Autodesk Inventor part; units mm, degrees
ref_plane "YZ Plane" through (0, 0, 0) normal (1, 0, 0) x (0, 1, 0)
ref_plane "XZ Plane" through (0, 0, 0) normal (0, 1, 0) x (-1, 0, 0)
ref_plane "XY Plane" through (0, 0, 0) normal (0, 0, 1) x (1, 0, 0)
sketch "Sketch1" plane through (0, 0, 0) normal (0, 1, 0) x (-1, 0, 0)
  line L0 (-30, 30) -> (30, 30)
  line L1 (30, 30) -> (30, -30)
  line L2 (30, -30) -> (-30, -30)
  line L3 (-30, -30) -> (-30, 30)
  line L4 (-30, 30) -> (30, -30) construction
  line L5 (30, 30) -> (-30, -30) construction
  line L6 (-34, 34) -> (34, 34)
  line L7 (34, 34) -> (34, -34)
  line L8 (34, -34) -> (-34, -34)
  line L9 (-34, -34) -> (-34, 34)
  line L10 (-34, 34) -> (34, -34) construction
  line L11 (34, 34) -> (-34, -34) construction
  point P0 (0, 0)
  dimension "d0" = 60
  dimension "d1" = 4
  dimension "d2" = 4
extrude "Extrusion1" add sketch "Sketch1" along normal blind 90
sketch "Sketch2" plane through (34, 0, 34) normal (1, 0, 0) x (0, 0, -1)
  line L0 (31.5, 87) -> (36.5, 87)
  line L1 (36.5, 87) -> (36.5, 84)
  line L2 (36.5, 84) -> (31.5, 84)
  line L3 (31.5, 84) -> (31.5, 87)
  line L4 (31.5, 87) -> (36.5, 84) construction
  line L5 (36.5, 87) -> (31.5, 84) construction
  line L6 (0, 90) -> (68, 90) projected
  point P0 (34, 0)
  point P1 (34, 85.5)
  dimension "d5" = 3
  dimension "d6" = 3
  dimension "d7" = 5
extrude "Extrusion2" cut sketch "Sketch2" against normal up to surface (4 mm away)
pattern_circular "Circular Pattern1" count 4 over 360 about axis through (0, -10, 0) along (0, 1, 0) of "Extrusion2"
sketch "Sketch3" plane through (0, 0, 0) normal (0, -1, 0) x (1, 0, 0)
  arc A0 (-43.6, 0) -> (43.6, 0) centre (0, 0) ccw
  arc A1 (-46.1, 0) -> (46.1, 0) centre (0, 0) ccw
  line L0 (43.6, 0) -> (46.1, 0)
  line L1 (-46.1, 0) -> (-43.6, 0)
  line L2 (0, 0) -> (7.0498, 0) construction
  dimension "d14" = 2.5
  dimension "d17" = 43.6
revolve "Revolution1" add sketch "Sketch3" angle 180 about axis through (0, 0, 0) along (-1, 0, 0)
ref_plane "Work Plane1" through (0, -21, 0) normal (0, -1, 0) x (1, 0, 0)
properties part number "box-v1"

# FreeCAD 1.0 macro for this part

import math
import FreeCAD as App
import Part
import Sketcher

V = App.Vector
Q = App.Units.Quantity


def add_polygon(sketch, points):
    """Adds a closed chain of lines whose ends are joined by coincident constraints."""
    first, n = sketch.GeometryCount, len(points)
    for a, b in zip(points, points[1:] + points[:1]):
        sketch.addGeometry(Part.LineSegment(App.Vector(*a, 0), App.Vector(*b, 0)), False)
    for i in range(n):
        sketch.addConstraint(Sketcher.Constraint("Coincident", first + i, 2, first + (i + 1) % n, 1))

doc = App.newDocument("Part")
params = doc.addObject("Spreadsheet::Sheet", "Params")
for row, (alias, value) in enumerate([
    ("sketch1_width", "60 mm"),
    ("pad1_length", "90 mm"),
    ("sketch2_width", "3 mm"),
    ("sketch2_height", "5 mm"),
    ("pocket1_length", "4 mm"),
    ("sketch3_radius", "43.6 mm"),
    ("sketch3_width", "2.5 mm"),
    ("revolution_angle", "180 deg"),
], start=1):
    params.set(f"A{row}", alias)
    params.set(f"B{row}", "=" + value)
    params.setAlias(f"B{row}", alias)

body = doc.addObject("PartDesign::Body", "Body")

# Sketch on XZ plane
sketch1 = body.newObject("Sketcher::SketchObject", "Sketch")
sketch1.AttachmentSupport = (doc.getObject("XZ_Plane"), [""])
sketch1.MapMode = "FlatFace"
add_polygon(sketch1, [(-34, 34), (34, 34), (34, -34), (-34, -34)])  # lines 0-3
add_polygon(sketch1, [(30, -30), (30, 30), (-30, 30), (-30, -30)])  # lines 4-7
sketch1.addConstraint([
    Sketcher.Constraint("Horizontal", 0),
    Sketcher.Constraint("Vertical", 1),
    Sketcher.Constraint("Horizontal", 2),
    Sketcher.Constraint("Vertical", 3),
    Sketcher.Constraint("Vertical", 4),
    Sketcher.Constraint("Horizontal", 5),
    Sketcher.Constraint("Vertical", 6),
    Sketcher.Constraint("Horizontal", 7),
    Sketcher.Constraint("Symmetric", 0, 2, 2, 2, -1, 1),
    Sketcher.Constraint("Symmetric", 4, 2, 6, 2, -1, 1),
    Sketcher.Constraint("Equal", 2, 1),
    Sketcher.Constraint("Equal", 7, 4),
    Sketcher.Constraint("DistanceX", 5, 2, 5, 1, Q("60 mm")),
    Sketcher.Constraint("DistanceX", 4, 2, 0, 2, Q("4 mm")),
])
sketch1.setExpression("Constraints[20]", "Params.sketch1_width")
pad1 = body.newObject("PartDesign::Pad", "Pad")
pad1.Profile = sketch1
pad1.setExpression("Length", "Params.pad1_length")
pad1.Reversed = True

# Sketch on YZ plane
sketch2 = body.newObject("Sketcher::SketchObject", "Sketch001")
sketch2.AttachmentSupport = (doc.getObject("YZ_Plane"), [""])
sketch2.MapMode = "FlatFace"
sketch2.AttachmentOffset = App.Placement(V(0, 0, 34), App.Rotation())
add_polygon(sketch2, [(87, -2.5), (87, 2.5), (84, 2.5), (84, -2.5)])  # lines 0-3
sketch2.addConstraint([
    Sketcher.Constraint("Vertical", 0),
    Sketcher.Constraint("Horizontal", 1),
    Sketcher.Constraint("Vertical", 2),
    Sketcher.Constraint("Horizontal", 3),
    Sketcher.Constraint("DistanceX", 1, 2, 1, 1, Q("3 mm")),
    Sketcher.Constraint("DistanceY", 0, 1, 0, 2, Q("5 mm")),
    Sketcher.Constraint("DistanceX", -1, 1, 0, 2, Q("87 mm")),
    Sketcher.Constraint("DistanceY", -1, 1, 0, 2, Q("2.5 mm")),
])
sketch2.setExpression("Constraints[8]", "Params.sketch2_width")
sketch2.setExpression("Constraints[9]", "Params.sketch2_height")
pocket1 = body.newObject("PartDesign::Pocket", "Pocket")
pocket1.Profile = sketch2
pocket1.setExpression("Length", "Params.pocket1_length")
doc.recompute()

polarpattern = body.newObject("PartDesign::PolarPattern", "PolarPattern")
polarpattern.Originals = [pocket1]
polarpattern.Axis = (doc.getObject("Y_Axis"), [""])
polarpattern.Angle = 360
polarpattern.Occurrences = 4
body.Tip = polarpattern

# Sketch on XZ plane
sketch3 = body.newObject("Sketcher::SketchObject", "Sketch002")
sketch3.AttachmentSupport = (doc.getObject("XZ_Plane"), [""])
sketch3.MapMode = "FlatFace"
sketch3.addGeometry([
    Part.ArcOfCircle(Part.Circle(V(0, 0, 0), V(0, 0, 1), 43.6), math.radians(180), math.radians(360)),
    Part.LineSegment(V(-43.6, 0, 0), V(-46.1, 0, 0)),
    Part.ArcOfCircle(Part.Circle(V(0, 0, 0), V(0, 0, 1), 46.1), math.radians(180), math.radians(360)),
    Part.LineSegment(V(46.1, 0, 0), V(43.6, 0, 0)),
], False)
sketch3.addConstraint([
    Sketcher.Constraint("Coincident", 0, 1, 1, 1),
    Sketcher.Constraint("Coincident", 1, 2, 2, 1),
    Sketcher.Constraint("Coincident", 2, 2, 3, 1),
    Sketcher.Constraint("Coincident", 3, 2, 0, 2),
    Sketcher.Constraint("Horizontal", 1),
    Sketcher.Constraint("Horizontal", 3),
    Sketcher.Constraint("Coincident", 0, 3, -1, 1),
    Sketcher.Constraint("Coincident", 2, 3, -1, 1),
    Sketcher.Constraint("PointOnObject", 0, 1, -1),
    Sketcher.Constraint("PointOnObject", 2, 2, -1),
    Sketcher.Constraint("Radius", 0, Q("43.6 mm")),
    Sketcher.Constraint("DistanceX", 1, 2, 1, 1, Q("2.5 mm")),
])
sketch3.setExpression("Constraints[10]", "Params.sketch3_radius")
sketch3.setExpression("Constraints[11]", "Params.sketch3_width")
revolution = body.newObject("PartDesign::Revolution", "Revolution")
revolution.Profile = sketch3
revolution.ReferenceAxis = (sketch3, ["H_Axis"])
revolution.setExpression("Angle", "Params.revolution_angle")
revolution.Reversed = True

doc.recompute()
